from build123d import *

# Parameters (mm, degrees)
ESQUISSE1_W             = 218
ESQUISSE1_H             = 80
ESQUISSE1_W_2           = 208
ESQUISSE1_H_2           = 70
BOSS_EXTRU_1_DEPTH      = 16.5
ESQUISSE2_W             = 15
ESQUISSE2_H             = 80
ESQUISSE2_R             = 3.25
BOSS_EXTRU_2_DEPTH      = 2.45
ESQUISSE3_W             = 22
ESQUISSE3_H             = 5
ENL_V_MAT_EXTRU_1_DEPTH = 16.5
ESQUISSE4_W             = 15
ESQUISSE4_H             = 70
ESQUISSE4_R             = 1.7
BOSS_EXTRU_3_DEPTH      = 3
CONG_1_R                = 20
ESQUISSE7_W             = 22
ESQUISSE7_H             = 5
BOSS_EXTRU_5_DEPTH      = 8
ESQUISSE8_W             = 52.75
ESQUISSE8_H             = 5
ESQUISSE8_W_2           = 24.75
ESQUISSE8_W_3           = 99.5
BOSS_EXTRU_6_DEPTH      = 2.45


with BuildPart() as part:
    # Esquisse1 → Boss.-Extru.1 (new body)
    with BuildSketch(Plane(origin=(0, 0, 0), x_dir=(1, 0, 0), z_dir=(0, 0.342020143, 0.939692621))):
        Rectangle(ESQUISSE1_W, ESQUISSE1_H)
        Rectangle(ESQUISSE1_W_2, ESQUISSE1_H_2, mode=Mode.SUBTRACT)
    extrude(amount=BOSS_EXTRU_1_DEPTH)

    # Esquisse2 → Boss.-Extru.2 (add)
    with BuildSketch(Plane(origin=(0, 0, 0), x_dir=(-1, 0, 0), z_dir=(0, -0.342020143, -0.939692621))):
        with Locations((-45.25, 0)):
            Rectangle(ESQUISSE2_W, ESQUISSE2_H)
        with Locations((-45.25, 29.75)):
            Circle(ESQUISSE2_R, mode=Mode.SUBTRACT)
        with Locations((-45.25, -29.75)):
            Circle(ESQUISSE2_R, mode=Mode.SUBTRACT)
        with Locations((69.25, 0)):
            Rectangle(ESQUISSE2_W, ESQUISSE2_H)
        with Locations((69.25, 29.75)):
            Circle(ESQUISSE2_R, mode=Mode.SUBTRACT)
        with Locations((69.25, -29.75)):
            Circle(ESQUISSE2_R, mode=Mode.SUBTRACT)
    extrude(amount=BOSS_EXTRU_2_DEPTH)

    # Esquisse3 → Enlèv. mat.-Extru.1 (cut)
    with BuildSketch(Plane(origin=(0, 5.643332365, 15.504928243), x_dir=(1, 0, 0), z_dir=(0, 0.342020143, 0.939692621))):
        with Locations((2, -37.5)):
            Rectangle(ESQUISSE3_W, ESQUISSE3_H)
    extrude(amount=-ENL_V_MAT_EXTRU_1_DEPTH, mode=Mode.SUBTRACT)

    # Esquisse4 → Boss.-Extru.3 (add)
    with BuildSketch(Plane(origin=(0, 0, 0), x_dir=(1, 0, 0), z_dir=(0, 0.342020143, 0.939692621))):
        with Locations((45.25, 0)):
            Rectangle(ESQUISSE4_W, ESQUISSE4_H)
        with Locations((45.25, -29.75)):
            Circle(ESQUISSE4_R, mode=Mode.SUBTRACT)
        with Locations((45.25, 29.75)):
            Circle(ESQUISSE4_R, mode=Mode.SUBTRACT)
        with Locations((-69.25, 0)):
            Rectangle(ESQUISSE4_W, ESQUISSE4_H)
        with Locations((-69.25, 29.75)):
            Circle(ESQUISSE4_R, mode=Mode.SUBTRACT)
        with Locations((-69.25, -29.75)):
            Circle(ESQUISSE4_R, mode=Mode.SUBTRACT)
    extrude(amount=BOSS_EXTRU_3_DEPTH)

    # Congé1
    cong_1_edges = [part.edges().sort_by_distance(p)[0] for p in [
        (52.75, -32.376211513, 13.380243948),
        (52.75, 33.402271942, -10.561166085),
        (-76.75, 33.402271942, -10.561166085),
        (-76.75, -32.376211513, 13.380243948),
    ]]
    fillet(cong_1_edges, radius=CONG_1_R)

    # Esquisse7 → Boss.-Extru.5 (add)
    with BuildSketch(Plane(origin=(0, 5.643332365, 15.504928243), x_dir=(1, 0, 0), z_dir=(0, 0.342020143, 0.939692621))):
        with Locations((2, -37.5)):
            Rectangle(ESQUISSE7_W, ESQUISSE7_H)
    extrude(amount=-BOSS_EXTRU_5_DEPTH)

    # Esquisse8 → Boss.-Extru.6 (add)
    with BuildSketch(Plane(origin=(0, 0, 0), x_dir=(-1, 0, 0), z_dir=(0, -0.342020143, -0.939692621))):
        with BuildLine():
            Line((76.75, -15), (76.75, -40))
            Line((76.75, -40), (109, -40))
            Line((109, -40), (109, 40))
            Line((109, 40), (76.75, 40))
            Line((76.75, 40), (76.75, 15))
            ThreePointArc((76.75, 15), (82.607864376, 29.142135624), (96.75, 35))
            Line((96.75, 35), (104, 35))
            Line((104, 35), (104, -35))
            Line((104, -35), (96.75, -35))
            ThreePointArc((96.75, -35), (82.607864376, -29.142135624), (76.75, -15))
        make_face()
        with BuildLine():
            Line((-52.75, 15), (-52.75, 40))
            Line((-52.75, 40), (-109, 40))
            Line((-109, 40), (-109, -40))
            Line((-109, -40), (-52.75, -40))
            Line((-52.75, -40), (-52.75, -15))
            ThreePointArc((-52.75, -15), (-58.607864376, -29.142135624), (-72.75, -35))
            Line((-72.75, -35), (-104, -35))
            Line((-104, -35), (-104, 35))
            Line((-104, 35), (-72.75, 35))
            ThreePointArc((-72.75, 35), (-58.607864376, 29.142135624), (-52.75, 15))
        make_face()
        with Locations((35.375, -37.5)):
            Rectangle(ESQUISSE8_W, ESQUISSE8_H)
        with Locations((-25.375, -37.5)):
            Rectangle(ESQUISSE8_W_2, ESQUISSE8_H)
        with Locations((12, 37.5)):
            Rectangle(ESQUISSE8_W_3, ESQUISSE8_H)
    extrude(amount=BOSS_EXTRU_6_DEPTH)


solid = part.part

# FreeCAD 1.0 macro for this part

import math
import FreeCAD as App
import Part
import Sketcher

V = App.Vector


def edges_at(feature, points):
    """Names of the edges that pass closest to the given points."""
    edges = feature.Shape.Edges
    near = lambda p: min(range(len(edges)), key=lambda i: edges[i].distToShape(Part.Vertex(*p))[0])
    return sorted({f"Edge{near(p) + 1}" for p in points})


def add_polygon(sketch, points):
    """Adds a closed chain of lines whose ends are joined by coincident constraints."""
    first, n = sketch.GeometryCount, len(points)
    for a, b in zip(points, points[1:] + points[:1]):
        sketch.addGeometry(Part.LineSegment(App.Vector(*a, 0), App.Vector(*b, 0)), False)
    for i in range(n):
        sketch.addConstraint(Sketcher.Constraint("Coincident", first + i, 2, first + (i + 1) % n, 1))

doc = App.newDocument("Part")
params = doc.addObject("Spreadsheet::Sheet", "Params")
for row, (alias, value) in enumerate([
    ("sketch1_width", "218 mm"),
    ("sketch1_width2", "208 mm"),
    ("sketch1_height", "80 mm"),
    ("sketch1_height2", "70 mm"),
    ("pad1_length", "16.5 mm"),
    ("sketch2_diameter", "6.5 mm"),
    ("sketch2_width", "15 mm"),
    ("sketch2_height", "80 mm"),
    ("pad2_length", "2.45 mm"),
    ("sketch3_width", "22 mm"),
    ("sketch3_height", "5 mm"),
    ("pocket1_length", "16.5 mm"),
    ("sketch4_diameter", "3.4 mm"),
    ("sketch4_width", "15 mm"),
    ("sketch4_height", "70 mm"),
    ("pad3_length", "3 mm"),
    ("fillet_radius", "20 mm"),
    ("sketch5_width", "22 mm"),
    ("sketch5_height", "5 mm"),
    ("pad4_length", "8 mm"),
    ("sketch6_radius", "20 mm"),
    ("sketch6_height", "25 mm"),
    ("sketch6_height2", "80 mm"),
    ("sketch6_width", "99.5 mm"),
    ("sketch6_width2", "32.25 mm"),
    ("pad5_length", "2.45 mm"),
], start=1):
    params.set(f"A{row}", alias)
    params.set(f"B{row}", "=" + value)
    params.setAlias(f"B{row}", alias)

body = doc.addObject("PartDesign::Body", "Body")

# Sketch on an angled plane
sketch1 = body.newObject("Sketcher::SketchObject", "Sketch")
sketch1.Placement = App.Placement(V(0, 0, 0), App.Rotation(V(1, 0, 0), V(0, 0.939692621, -0.342020143), V(0, 0.342020143, 0.939692621), "ZXY"))
add_polygon(sketch1, [(-109, 40), (-109, -40), (109, -40), (109, 40)])  # lines 0-3
add_polygon(sketch1, [(104, -35), (-104, -35), (-104, 35), (104, 35)])  # lines 4-7
sketch1.addConstraint([
    Sketcher.Constraint("Vertical", 0),
    Sketcher.Constraint("Horizontal", 1),
    Sketcher.Constraint("Vertical", 2),
    Sketcher.Constraint("Horizontal", 3),
    Sketcher.Constraint("Horizontal", 4),
    Sketcher.Constraint("Vertical", 5),
    Sketcher.Constraint("Horizontal", 6),
    Sketcher.Constraint("Vertical", 7),
    Sketcher.Constraint("Symmetric", 0, 2, 2, 2, -1, 1),
    Sketcher.Constraint("Symmetric", 4, 2, 6, 2, -1, 1),
    Sketcher.Constraint("DistanceX", 1, 1, 1, 2, 218.0),
    Sketcher.Constraint("DistanceX", 4, 2, 4, 1, 208.0),
    Sketcher.Constraint("DistanceY", 0, 2, 0, 1, 80.0),
    Sketcher.Constraint("DistanceY", 5, 1, 5, 2, 70.0),
])
sketch1.setExpression("Constraints[18]", "Params.sketch1_width")
sketch1.setExpression("Constraints[19]", "Params.sketch1_width2")
sketch1.setExpression("Constraints[20]", "Params.sketch1_height")
sketch1.setExpression("Constraints[21]", "Params.sketch1_height2")
pad1 = body.newObject("PartDesign::Pad", "Pad")
pad1.Profile = sketch1
pad1.setExpression("Length", "Params.pad1_length")

# Sketch on an angled plane
sketch2 = body.newObject("Sketcher::SketchObject", "Sketch001")
sketch2.Placement = App.Placement(V(0, 0, 0), App.Rotation(V(-1, 0, 0), V(0, 0.939692621, -0.342020143), V(0, -0.342020143, -0.939692621), "ZXY"))
add_polygon(sketch2, [(-52.8, 40), (-52.8, -40), (-37.8, -40), (-37.8, 40)])  # lines 0-3
sketch2.addGeometry(Part.Circle(V(-45.2, -29.8, 0), V(0, 0, 1), 3.2), False)  # 4
sketch2.addGeometry(Part.Circle(V(-45.2, 29.8, 0), V(0, 0, 1), 3.2), False)  # 5
add_polygon(sketch2, [(61.8, 40), (61.8, -40), (76.8, -40), (76.8, 40)])  # lines 6-9
sketch2.addGeometry(Part.Circle(V(69.2, -29.8, 0), V(0, 0, 1), 3.2), False)  # 10
sketch2.addGeometry(Part.Circle(V(69.2, 29.8, 0), V(0, 0, 1), 3.2), False)  # 11
sketch2.addConstraint([
    Sketcher.Constraint("Vertical", 0),
    Sketcher.Constraint("Horizontal", 1),
    Sketcher.Constraint("Vertical", 2),
    Sketcher.Constraint("Horizontal", 3),
    Sketcher.Constraint("Vertical", 6),
    Sketcher.Constraint("Horizontal", 7),
    Sketcher.Constraint("Vertical", 8),
    Sketcher.Constraint("Horizontal", 9),
    Sketcher.Constraint("Equal", 4, 5),
    Sketcher.Constraint("Equal", 5, 10),
    Sketcher.Constraint("Equal", 10, 11),
    Sketcher.Constraint("Symmetric", 4, 3, 5, 3, -1),
    Sketcher.Constraint("Symmetric", 10, 3, 11, 3, -1),
    Sketcher.Constraint("Horizontal", 4, 3, 10, 3),
    Sketcher.Constraint("Horizontal", 1, 2, 6, 2),
    Sketcher.Constraint("Horizontal", 3, 2, 8, 2),
    Sketcher.Constraint("Equal", 3, 7),
    Sketcher.Constraint("Diameter", 4, 6.5),
    Sketcher.Constraint("DistanceX", 1, 1, 1, 2, 15.0),
    Sketcher.Constraint("DistanceY", 0, 2, 0, 1, 80.0),
    Sketcher.Constraint("DistanceY", 0, 2, -1, 1, 40.0),
    Sketcher.Constraint("DistanceX", 0, 2, 10, 3, 122.0),
    Sketcher.Constraint("DistanceX", 4, 3, 6, 2, 107.0),
    Sketcher.Constraint("DistanceY", 4, 3, 5, 3, 59.5),
    Sketcher.Constraint("DistanceX", 4, 3, 10, 3, 114.5),
    Sketcher.Constraint("DistanceX", 4, 3, -1, 1, 45.25),
])
sketch2.setExpression("Constraints[25]", "Params.sketch2_diameter")
sketch2.setExpression("Constraints[26]", "Params.sketch2_width")
sketch2.setExpression("Constraints[27]", "Params.sketch2_height")
pad2 = body.newObject("PartDesign::Pad", "Pad001")
pad2.Profile = sketch2
pad2.setExpression("Length", "Params.pad2_length")

# Sketch on an angled plane
sketch3 = body.newObject("Sketcher::SketchObject", "Sketch002")
sketch3.Placement = App.Placement(V(0, 5.643332, 15.504928), App.Rotation(V(1, 0, 0), V(0, 0.939692621, -0.342020143), V(0, 0.342020143, 0.939692621), "ZXY"))
add_polygon(sketch3, [(-9, -35), (-9, -40), (13, -40), (13, -35)])  # lines 0-3
sketch3.addConstraint([
    Sketcher.Constraint("Vertical", 0),
    Sketcher.Constraint("Horizontal", 1),
    Sketcher.Constraint("Vertical", 2),
    Sketcher.Constraint("Horizontal", 3),
    Sketcher.Constraint("DistanceX", 1, 1, 1, 2, 22.0),
    Sketcher.Constraint("DistanceY", 0, 2, 0, 1, 5.0),
    Sketcher.Constraint("DistanceX", 0, 2, -1, 1, 9.0),
    Sketcher.Constraint("DistanceY", 0, 2, -1, 1, 40.0),
])
sketch3.setExpression("Constraints[8]", "Params.sketch3_width")
sketch3.setExpression("Constraints[9]", "Params.sketch3_height")
pocket1 = body.newObject("PartDesign::Pocket", "Pocket")
pocket1.Profile = sketch3
pocket1.setExpression("Length", "Params.pocket1_length")

# Sketch on an angled plane
sketch4 = body.newObject("Sketcher::SketchObject", "Sketch003")
sketch4.Placement = App.Placement(V(0, 0, 0), App.Rotation(V(1, 0, 0), V(0, 0.939692621, -0.342020143), V(0, 0.342020143, 0.939692621), "ZXY"))
add_polygon(sketch4, [(37.8, 35), (37.8, -35), (52.8, -35), (52.8, 35)])  # lines 0-3
sketch4.addGeometry(Part.Circle(V(45.2, -29.8, 0), V(0, 0, 1), 1.7), False)  # 4
sketch4.addGeometry(Part.Circle(V(45.2, 29.8, 0), V(0, 0, 1), 1.7), False)  # 5
add_polygon(sketch4, [(-76.8, 35), (-76.8, -35), (-61.8, -35), (-61.8, 35)])  # lines 6-9
sketch4.addGeometry(Part.Circle(V(-69.2, -29.8, 0), V(0, 0, 1), 1.7), False)  # 10
sketch4.addGeometry(Part.Circle(V(-69.2, 29.8, 0), V(0, 0, 1), 1.7), False)  # 11
sketch4.addConstraint([
    Sketcher.Constraint("Vertical", 0),
    Sketcher.Constraint("Horizontal", 1),
    Sketcher.Constraint("Vertical", 2),
    Sketcher.Constraint("Horizontal", 3),
    Sketcher.Constraint("Vertical", 6),
    Sketcher.Constraint("Horizontal", 7),
    Sketcher.Constraint("Vertical", 8),
    Sketcher.Constraint("Horizontal", 9),
    Sketcher.Constraint("Equal", 4, 5),
    Sketcher.Constraint("Equal", 5, 10),
    Sketcher.Constraint("Equal", 10, 11),
    Sketcher.Constraint("Symmetric", 4, 3, 5, 3, -1),
    Sketcher.Constraint("Symmetric", 10, 3, 11, 3, -1),
    Sketcher.Constraint("Horizontal", 4, 3, 10, 3),
    Sketcher.Constraint("Horizontal", 1, 2, 6, 2),
    Sketcher.Constraint("Horizontal", 3, 2, 8, 2),
    Sketcher.Constraint("Equal", 3, 7),
    Sketcher.Constraint("Diameter", 4, 3.4),
    Sketcher.Constraint("DistanceX", 1, 1, 1, 2, 15.0),
    Sketcher.Constraint("DistanceY", 0, 2, 0, 1, 70.0),
    Sketcher.Constraint("DistanceY", 0, 2, -1, 1, 35.0),
    Sketcher.Constraint("DistanceX", 10, 3, 0, 2, 107.0),
    Sketcher.Constraint("DistanceX", 6, 2, 4, 3, 122.0),
    Sketcher.Constraint("DistanceY", 4, 3, 5, 3, 59.5),
    Sketcher.Constraint("DistanceX", 10, 3, 4, 3, 114.5),
    Sketcher.Constraint("DistanceX", -1, 1, 4, 3, 45.25),
])
sketch4.setExpression("Constraints[25]", "Params.sketch4_diameter")
sketch4.setExpression("Constraints[26]", "Params.sketch4_width")
sketch4.setExpression("Constraints[27]", "Params.sketch4_height")
pad3 = body.newObject("PartDesign::Pad", "Pad002")
pad3.Profile = sketch4
pad3.setExpression("Length", "Params.pad3_length")
doc.recompute()

fillet = body.newObject("PartDesign::Fillet", "Fillet")
fillet.Base = (pad3, edges_at(pad3, [
    (52.75, -32.376, 13.38),
    (52.75, 33.402, -10.561),
    (-76.75, 33.402, -10.561),
    (-76.75, -32.376, 13.38),
]))
fillet.setExpression("Radius", "Params.fillet_radius")

# Sketch on an angled plane
sketch5 = body.newObject("Sketcher::SketchObject", "Sketch004")
sketch5.Placement = App.Placement(V(0, 5.643332, 15.504928), App.Rotation(V(1, 0, 0), V(0, 0.939692621, -0.342020143), V(0, 0.342020143, 0.939692621), "ZXY"))
add_polygon(sketch5, [(-9, -35), (-9, -40), (13, -40), (13, -35)])  # lines 0-3
sketch5.addConstraint([
    Sketcher.Constraint("Vertical", 0),
    Sketcher.Constraint("Horizontal", 1),
    Sketcher.Constraint("Vertical", 2),
    Sketcher.Constraint("Horizontal", 3),
    Sketcher.Constraint("DistanceX", 1, 1, 1, 2, 22.0),
    Sketcher.Constraint("DistanceY", 0, 2, 0, 1, 5.0),
    Sketcher.Constraint("DistanceX", 0, 2, -1, 1, 9.0),
    Sketcher.Constraint("DistanceY", 0, 2, -1, 1, 40.0),
])
sketch5.setExpression("Constraints[8]", "Params.sketch5_width")
sketch5.setExpression("Constraints[9]", "Params.sketch5_height")
pad4 = body.newObject("PartDesign::Pad", "Pad003")
pad4.Profile = sketch5
pad4.setExpression("Length", "Params.pad4_length")
pad4.Reversed = True

# Sketch on an angled plane
sketch6 = body.newObject("Sketcher::SketchObject", "Sketch005")
sketch6.Placement = App.Placement(V(0, 0, 0), App.Rotation(V(-1, 0, 0), V(0, 0.939692621, -0.342020143), V(0, -0.342020143, -0.939692621), "ZXY"))
sketch6.addGeometry(Part.LineSegment(V(77, -15, 0), V(77, -40, 0)), False)  # 0
sketch6.addGeometry(Part.LineSegment(V(77, -40, 0), V(109, -40, 0)), False)  # 1
sketch6.addGeometry(Part.LineSegment(V(109, -40, 0), V(109, 40, 0)), False)  # 2
sketch6.addGeometry(Part.LineSegment(V(109, 40, 0), V(77, 40, 0)), False)  # 3
sketch6.addGeometry(Part.LineSegment(V(77, 40, 0), V(77, 15, 0)), False)  # 4
sketch6.addGeometry(Part.ArcOfCircle(Part.Circle(V(97, 15, 0), V(0, 0, 1), 20), math.radians(90), math.radians(180)), False)  # 5
sketch6.addGeometry(Part.LineSegment(V(97, 35, 0), V(104, 35, 0)), False)  # 6
sketch6.addGeometry(Part.LineSegment(V(104, 35, 0), V(104, -35, 0)), False)  # 7
sketch6.addGeometry(Part.LineSegment(V(104, -35, 0), V(97, -35, 0)), False)  # 8
sketch6.addGeometry(Part.ArcOfCircle(Part.Circle(V(97, -15, 0), V(0, 0, 1), 20), math.radians(180), math.radians(270)), False)  # 9
sketch6.addGeometry(Part.LineSegment(V(-53, 15, 0), V(-53, 40, 0)), False)  # 10
sketch6.addGeometry(Part.LineSegment(V(-53, 40, 0), V(-109, 40, 0)), False)  # 11
sketch6.addGeometry(Part.LineSegment(V(-109, 40, 0), V(-109, -40, 0)), False)  # 12
sketch6.addGeometry(Part.LineSegment(V(-109, -40, 0), V(-53, -40, 0)), False)  # 13
sketch6.addGeometry(Part.LineSegment(V(-53, -40, 0), V(-53, -15, 0)), False)  # 14
sketch6.addGeometry(Part.ArcOfCircle(Part.Circle(V(-73, -15, 0), V(0, 0, 1), 20), math.radians(-90), math.radians(0)), False)  # 15
sketch6.addGeometry(Part.LineSegment(V(-73, -35, 0), V(-104, -35, 0)), False)  # 16
sketch6.addGeometry(Part.LineSegment(V(-104, -35, 0), V(-104, 35, 0)), False)  # 17
sketch6.addGeometry(Part.LineSegment(V(-104, 35, 0), V(-73, 35, 0)), False)  # 18
sketch6.addGeometry(Part.ArcOfCircle(Part.Circle(V(-73, 15, 0), V(0, 0, 1), 20), math.radians(0), math.radians(90)), False)  # 19
add_polygon(sketch6, [(9, -35), (9, -40), (62, -40), (62, -35)])  # lines 20-23
add_polygon(sketch6, [(-38, -35), (-38, -40), (-13, -40), (-13, -35)])  # lines 24-27
add_polygon(sketch6, [(-38, 40), (-38, 35), (62, 35), (62, 40)])  # lines 28-31
sketch6.addConstraint([
    Sketcher.Constraint("Coincident", 0, 2, 1, 1),
    Sketcher.Constraint("Coincident", 1, 2, 2, 1),
    Sketcher.Constraint("Coincident", 2, 2, 3, 1),
    Sketcher.Constraint("Coincident", 3, 2, 4, 1),
    Sketcher.Constraint("Tangent", 4, 2, 5, 2),
    Sketcher.Constraint("Tangent", 5, 1, 6, 1),
    Sketcher.Constraint("Coincident", 6, 2, 7, 1),
    Sketcher.Constraint("Coincident", 7, 2, 8, 1),
    Sketcher.Constraint("Tangent", 8, 2, 9, 2),
    Sketcher.Constraint("Tangent", 9, 1, 0, 1),
    Sketcher.Constraint("Coincident", 10, 2, 11, 1),
    Sketcher.Constraint("Coincident", 11, 2, 12, 1),
    Sketcher.Constraint("Coincident", 12, 2, 13, 1),
    Sketcher.Constraint("Coincident", 13, 2, 14, 1),
    Sketcher.Constraint("Tangent", 14, 2, 15, 2),
    Sketcher.Constraint("Tangent", 15, 1, 16, 1),
    Sketcher.Constraint("Coincident", 16, 2, 17, 1),
    Sketcher.Constraint("Coincident", 17, 2, 18, 1),
    Sketcher.Constraint("Tangent", 18, 2, 19, 2),
    Sketcher.Constraint("Tangent", 19, 1, 10, 1),
    Sketcher.Constraint("Vertical", 0),
    Sketcher.Constraint("Horizontal", 1),
    Sketcher.Constraint("Vertical", 2),
    Sketcher.Constraint("Horizontal", 3),
    Sketcher.Constraint("Vertical", 4),
    Sketcher.Constraint("Horizontal", 6),
    Sketcher.Constraint("Vertical", 7),
    Sketcher.Constraint("Horizontal", 8),
    Sketcher.Constraint("Vertical", 10),
    Sketcher.Constraint("Horizontal", 11),
    Sketcher.Constraint("Vertical", 12),
    Sketcher.Constraint("Horizontal", 13),
    Sketcher.Constraint("Vertical", 14),
    Sketcher.Constraint("Horizontal", 16),
    Sketcher.Constraint("Vertical", 17),
    Sketcher.Constraint("Horizontal", 18),
    Sketcher.Constraint("Vertical", 20),
    Sketcher.Constraint("Horizontal", 21),
    Sketcher.Constraint("Vertical", 22),
    Sketcher.Constraint("Horizontal", 23),
    Sketcher.Constraint("Vertical", 24),
    Sketcher.Constraint("Horizontal", 25),
    Sketcher.Constraint("Vertical", 26),
    Sketcher.Constraint("Horizontal", 27),
    Sketcher.Constraint("Vertical", 28),
    Sketcher.Constraint("Horizontal", 29),
    Sketcher.Constraint("Vertical", 30),
    Sketcher.Constraint("Horizontal", 31),
    Sketcher.Constraint("Equal", 5, 9),
    Sketcher.Constraint("Equal", 9, 15),
    Sketcher.Constraint("Equal", 15, 19),
    Sketcher.Constraint("Symmetric", 1, 2, 11, 2, -1, 1),
    Sketcher.Constraint("Symmetric", 6, 2, 16, 2, -1, 1),
    Sketcher.Constraint("Symmetric", 5, 3, 9, 3, -1),
    Sketcher.Constraint("Symmetric", 15, 3, 19, 3, -1),
    Sketcher.Constraint("Symmetric", 27, 2, 28, 2, -1),
    Sketcher.Constraint("Symmetric", 22, 2, 29, 2, -1),
    Sketcher.Constraint("Horizontal", 3, 2, 10, 2),
    Sketcher.Constraint("Horizontal", 1, 2, 12, 2),
    Sketcher.Constraint("Horizontal", 13, 2, 20, 2),
    Sketcher.Constraint("Horizontal", 16, 2, 22, 2),
    Sketcher.Constraint("Horizontal", 21, 2, 24, 2),
    Sketcher.Constraint("Horizontal", 11, 2, 30, 2),
    Sketcher.Constraint("Radius", 5, 20.0),
    Sketcher.Constraint("DistanceY", 0, 2, 0, 1, 25.0),
    Sketcher.Constraint("DistanceY", 2, 1, 2, 2, 80.0),
    Sketcher.Constraint("DistanceX", 29, 1, 29, 2, 99.5),
    Sketcher.Constraint("DistanceX", -1, 1, 1, 2, 109.0),
    Sketcher.Constraint("DistanceX", -1, 1, 6, 2, 104.0),
    Sketcher.Constraint("DistanceX", -1, 1, 20, 2, 9.0),
    Sketcher.Constraint("DistanceX", 25, 2, -1, 1, 13.0),
    Sketcher.Constraint("DistanceX", 21, 2, 0, 2, 15.0),
    Sketcher.Constraint("DistanceX", 13, 2, 24, 2, 15.0),
    Sketcher.Constraint("DistanceX", 1, 1, 1, 2, 32.25),
])
sketch6.setExpression("Constraints[75]", "Params.sketch6_radius")
sketch6.setExpression("Constraints[76]", "Params.sketch6_height")
sketch6.setExpression("Constraints[77]", "Params.sketch6_height2")
sketch6.setExpression("Constraints[78]", "Params.sketch6_width")
sketch6.setExpression("Constraints[85]", "Params.sketch6_width2")
pad5 = body.newObject("PartDesign::Pad", "Pad004")
pad5.Profile = sketch6
pad5.setExpression("Length", "Params.pad5_length")

doc.recompute()
